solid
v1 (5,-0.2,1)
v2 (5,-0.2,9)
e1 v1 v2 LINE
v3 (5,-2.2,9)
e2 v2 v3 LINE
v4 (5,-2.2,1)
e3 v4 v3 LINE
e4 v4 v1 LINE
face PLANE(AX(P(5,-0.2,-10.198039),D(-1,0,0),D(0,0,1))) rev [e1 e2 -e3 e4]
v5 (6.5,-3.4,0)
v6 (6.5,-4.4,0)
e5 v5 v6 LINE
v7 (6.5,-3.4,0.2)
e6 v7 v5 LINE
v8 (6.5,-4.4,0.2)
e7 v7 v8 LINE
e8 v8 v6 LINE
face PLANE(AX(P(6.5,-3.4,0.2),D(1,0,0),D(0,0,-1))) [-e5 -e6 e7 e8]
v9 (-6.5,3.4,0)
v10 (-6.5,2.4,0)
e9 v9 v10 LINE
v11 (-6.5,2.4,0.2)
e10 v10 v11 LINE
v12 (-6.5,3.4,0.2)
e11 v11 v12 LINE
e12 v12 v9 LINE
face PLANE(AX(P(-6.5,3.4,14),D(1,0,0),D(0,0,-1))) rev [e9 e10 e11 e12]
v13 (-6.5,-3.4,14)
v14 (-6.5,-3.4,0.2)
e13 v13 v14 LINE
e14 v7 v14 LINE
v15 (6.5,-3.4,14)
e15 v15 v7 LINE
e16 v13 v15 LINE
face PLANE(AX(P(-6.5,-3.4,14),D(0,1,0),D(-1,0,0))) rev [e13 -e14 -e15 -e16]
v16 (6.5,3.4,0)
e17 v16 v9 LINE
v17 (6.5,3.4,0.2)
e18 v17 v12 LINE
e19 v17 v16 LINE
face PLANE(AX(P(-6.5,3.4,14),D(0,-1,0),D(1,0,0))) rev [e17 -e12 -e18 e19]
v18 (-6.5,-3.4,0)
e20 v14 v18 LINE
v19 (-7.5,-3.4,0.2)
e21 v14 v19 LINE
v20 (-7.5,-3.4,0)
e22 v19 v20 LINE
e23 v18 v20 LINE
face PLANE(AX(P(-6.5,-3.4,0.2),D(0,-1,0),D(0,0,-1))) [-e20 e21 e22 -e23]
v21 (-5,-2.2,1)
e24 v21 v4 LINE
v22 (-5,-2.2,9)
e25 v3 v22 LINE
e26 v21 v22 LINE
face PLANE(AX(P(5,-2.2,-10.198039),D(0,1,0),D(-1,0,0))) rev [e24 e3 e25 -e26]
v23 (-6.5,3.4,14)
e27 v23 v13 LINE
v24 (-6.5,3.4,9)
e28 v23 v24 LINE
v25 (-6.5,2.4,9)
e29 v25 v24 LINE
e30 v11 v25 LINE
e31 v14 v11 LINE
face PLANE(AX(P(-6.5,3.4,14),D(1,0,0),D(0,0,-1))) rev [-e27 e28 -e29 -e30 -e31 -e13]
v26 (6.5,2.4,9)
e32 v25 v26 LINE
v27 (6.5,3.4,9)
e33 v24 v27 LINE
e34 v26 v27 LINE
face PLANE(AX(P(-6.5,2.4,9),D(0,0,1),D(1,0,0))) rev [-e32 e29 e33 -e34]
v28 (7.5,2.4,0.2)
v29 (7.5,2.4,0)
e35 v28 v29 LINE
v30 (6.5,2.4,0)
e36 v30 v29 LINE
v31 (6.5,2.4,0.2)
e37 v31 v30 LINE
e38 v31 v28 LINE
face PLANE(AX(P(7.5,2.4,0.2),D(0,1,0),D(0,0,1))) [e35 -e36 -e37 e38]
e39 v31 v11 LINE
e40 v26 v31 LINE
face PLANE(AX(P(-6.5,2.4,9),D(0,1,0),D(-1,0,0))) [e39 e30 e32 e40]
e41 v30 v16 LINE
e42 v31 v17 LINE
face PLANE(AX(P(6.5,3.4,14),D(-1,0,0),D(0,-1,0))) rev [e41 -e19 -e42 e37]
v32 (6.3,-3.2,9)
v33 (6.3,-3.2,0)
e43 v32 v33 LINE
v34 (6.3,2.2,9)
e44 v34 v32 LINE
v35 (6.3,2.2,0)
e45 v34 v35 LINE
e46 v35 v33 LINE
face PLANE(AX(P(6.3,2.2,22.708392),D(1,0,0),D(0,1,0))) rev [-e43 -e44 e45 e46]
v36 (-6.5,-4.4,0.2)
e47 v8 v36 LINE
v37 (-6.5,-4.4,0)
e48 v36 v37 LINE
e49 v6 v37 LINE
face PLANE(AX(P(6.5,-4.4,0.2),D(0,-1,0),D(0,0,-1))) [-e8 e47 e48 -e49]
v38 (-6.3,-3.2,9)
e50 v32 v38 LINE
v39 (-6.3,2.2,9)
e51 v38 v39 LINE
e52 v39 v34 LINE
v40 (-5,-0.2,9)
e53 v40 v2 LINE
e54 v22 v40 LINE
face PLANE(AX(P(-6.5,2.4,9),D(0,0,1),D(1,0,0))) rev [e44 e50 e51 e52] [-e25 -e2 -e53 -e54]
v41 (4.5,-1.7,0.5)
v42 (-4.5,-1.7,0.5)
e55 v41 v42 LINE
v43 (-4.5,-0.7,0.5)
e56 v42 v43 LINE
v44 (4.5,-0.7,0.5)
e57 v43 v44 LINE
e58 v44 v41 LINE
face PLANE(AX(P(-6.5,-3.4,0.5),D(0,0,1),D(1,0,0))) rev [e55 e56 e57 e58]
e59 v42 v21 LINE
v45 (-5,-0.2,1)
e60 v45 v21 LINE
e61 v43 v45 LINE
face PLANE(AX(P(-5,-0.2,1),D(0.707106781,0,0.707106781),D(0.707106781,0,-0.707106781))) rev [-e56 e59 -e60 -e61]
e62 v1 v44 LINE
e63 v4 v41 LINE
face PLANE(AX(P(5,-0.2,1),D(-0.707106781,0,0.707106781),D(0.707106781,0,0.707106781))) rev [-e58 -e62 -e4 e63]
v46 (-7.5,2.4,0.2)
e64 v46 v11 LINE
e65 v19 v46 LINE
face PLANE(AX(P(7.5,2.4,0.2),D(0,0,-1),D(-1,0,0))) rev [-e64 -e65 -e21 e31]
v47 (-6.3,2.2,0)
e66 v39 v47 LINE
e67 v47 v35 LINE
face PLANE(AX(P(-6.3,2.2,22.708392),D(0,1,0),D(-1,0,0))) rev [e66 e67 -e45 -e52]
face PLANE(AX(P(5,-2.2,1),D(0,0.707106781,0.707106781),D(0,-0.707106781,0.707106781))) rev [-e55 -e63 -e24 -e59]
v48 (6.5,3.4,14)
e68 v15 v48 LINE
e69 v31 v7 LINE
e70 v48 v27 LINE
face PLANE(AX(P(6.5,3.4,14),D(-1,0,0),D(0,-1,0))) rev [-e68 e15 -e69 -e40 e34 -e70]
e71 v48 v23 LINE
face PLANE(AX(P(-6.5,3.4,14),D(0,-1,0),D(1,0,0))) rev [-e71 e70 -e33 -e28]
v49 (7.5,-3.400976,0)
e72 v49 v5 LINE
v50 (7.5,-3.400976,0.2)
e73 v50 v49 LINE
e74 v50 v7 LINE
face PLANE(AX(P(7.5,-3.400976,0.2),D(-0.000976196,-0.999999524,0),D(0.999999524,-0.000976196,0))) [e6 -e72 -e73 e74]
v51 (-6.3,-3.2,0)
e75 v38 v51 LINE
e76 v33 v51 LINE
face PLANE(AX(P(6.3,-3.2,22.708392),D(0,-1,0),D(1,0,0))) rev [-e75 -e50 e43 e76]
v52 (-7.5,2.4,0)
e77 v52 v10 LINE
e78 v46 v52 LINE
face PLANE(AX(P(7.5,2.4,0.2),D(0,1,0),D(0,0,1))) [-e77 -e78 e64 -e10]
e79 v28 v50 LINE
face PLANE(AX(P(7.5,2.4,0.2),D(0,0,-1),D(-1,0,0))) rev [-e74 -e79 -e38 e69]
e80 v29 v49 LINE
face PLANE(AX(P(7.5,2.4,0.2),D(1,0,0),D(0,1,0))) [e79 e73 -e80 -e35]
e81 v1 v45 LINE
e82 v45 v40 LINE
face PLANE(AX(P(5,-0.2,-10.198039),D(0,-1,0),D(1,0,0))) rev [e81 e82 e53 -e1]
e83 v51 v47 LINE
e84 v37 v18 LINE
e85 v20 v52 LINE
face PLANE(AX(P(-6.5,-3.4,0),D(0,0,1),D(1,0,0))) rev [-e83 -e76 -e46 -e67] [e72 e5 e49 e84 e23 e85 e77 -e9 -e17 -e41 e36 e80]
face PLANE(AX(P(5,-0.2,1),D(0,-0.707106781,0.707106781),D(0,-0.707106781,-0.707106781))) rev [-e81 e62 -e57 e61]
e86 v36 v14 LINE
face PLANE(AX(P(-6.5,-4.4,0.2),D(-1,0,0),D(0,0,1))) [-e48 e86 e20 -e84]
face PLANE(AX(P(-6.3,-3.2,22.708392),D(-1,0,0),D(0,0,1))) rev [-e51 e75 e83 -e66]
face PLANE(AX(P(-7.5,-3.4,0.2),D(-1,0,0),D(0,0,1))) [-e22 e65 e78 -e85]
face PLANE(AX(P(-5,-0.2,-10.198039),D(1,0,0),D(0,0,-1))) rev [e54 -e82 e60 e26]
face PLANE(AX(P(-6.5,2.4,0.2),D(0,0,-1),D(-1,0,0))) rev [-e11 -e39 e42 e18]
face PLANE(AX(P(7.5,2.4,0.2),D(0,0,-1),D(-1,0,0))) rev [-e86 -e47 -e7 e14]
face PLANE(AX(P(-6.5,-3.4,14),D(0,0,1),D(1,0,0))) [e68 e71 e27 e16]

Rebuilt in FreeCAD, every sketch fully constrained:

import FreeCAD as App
import Part
import Sketcher
Q = App.Units.Quantity


def edges_at(feature, points):
    """Names of the edges that pass closest to the given points."""
    edges = feature.Shape.Edges
    near = lambda p: min(range(len(edges)), key=lambda i: edges[i].distToShape(Part.Vertex(*p))[0])
    return sorted({f"Edge{near(p) + 1}" for p in points})


def add_polygon(sketch, points):
    """Adds a closed chain of lines whose ends are joined by coincident constraints."""
    first, n = sketch.GeometryCount, len(points)
    for a, b in zip(points, points[1:] + points[:1]):
        sketch.addGeometry(Part.LineSegment(App.Vector(*a, 0), App.Vector(*b, 0)), False)
    for i in range(n):
        sketch.addConstraint(Sketcher.Constraint("Coincident", first + i, 2, first + (i + 1) % n, 1))

doc = App.newDocument("Part")
body = doc.addObject("PartDesign::Body", "Body")

# Sketch on XY plane
sketch1 = body.newObject("Sketcher::SketchObject", "Sketch")
sketch1.AttachmentSupport = (doc.getObject("XY_Plane"), [""])
sketch1.MapMode = "FlatFace"
add_polygon(sketch1, [(-6, 3), (-6, -3), (6, -3), (6, 3)])  # lines 0-3
sketch1.addConstraint(Sketcher.Constraint("Vertical", 0))
sketch1.addConstraint(Sketcher.Constraint("Horizontal", 1))
sketch1.addConstraint(Sketcher.Constraint("Vertical", 2))
sketch1.addConstraint(Sketcher.Constraint("Horizontal", 3))
sketch1.addConstraint(Sketcher.Constraint("Symmetric", 0, 2, 2, 2, -1, 1))
sketch1.addConstraint(Sketcher.Constraint("DistanceX", 1, 1, 1, 2, Q("13 mm")))
sketch1.addConstraint(Sketcher.Constraint("DistanceY", 0, 2, 0, 1, Q("6.8 mm")))
pad1 = body.newObject("PartDesign::Pad", "Pad")
pad1.Profile = sketch1
pad1.Length = 14

# Sketch on XZ plane
sketch2 = body.newObject("Sketcher::SketchObject", "Sketch001")
sketch2.AttachmentSupport = (doc.getObject("XZ_Plane"), [""])
sketch2.MapMode = "FlatFace"
sketch2.AttachmentOffset = App.Placement(App.Vector(0, 0, -3.4), App.Rotation())
add_polygon(sketch2, [(6, 9), (6, 0), (-6, 0), (-6, 9)])  # lines 0-3
sketch2.addConstraint(Sketcher.Constraint("Vertical", 0))
sketch2.addConstraint(Sketcher.Constraint("Horizontal", 1))
sketch2.addConstraint(Sketcher.Constraint("Vertical", 2))
sketch2.addConstraint(Sketcher.Constraint("Horizontal", 3))
sketch2.addConstraint(Sketcher.Constraint("DistanceX", 1, 2, 1, 1, Q("13 mm")))
sketch2.addConstraint(Sketcher.Constraint("DistanceY", 0, 2, 0, 1, Q("8.8 mm")))
sketch2.addConstraint(Sketcher.Constraint("DistanceY", -1, 1, 2, 2, Q("9 mm")))
sketch2.addConstraint(Sketcher.Constraint("DistanceX", -1, 1, 0, 2, Q("6.5 mm")))
pocket1 = body.newObject("PartDesign::Pocket", "Pocket")
pocket1.Profile = sketch2
pocket1.Length = 1
pocket1.Reversed = True

# Sketch on XY plane
sketch3 = body.newObject("Sketcher::SketchObject", "Sketch002")
sketch3.AttachmentSupport = (doc.getObject("XY_Plane"), [""])
sketch3.MapMode = "FlatFace"
add_polygon(sketch3, [(-7.5, 2.4), (7.5, 2.4), (7.5, -3.4), (6.5, -3.4), (6.5, -4.4), (-6.5, -4.4), (-6.5, -3.4), (-7.5, -3.4)])  # lines 0-7
sketch3.addConstraint(Sketcher.Constraint("Horizontal", 0))
sketch3.addConstraint(Sketcher.Constraint("Vertical", 1))
sketch3.addConstraint(Sketcher.Constraint("Vertical", 3))
sketch3.addConstraint(Sketcher.Constraint("Horizontal", 4))
sketch3.addConstraint(Sketcher.Constraint("Vertical", 5))
sketch3.addConstraint(Sketcher.Constraint("Horizontal", 6))
sketch3.addConstraint(Sketcher.Constraint("Vertical", 7))
sketch3.addConstraint(Sketcher.Constraint("Symmetric", 2, 2, 5, 2, -2))
sketch3.addConstraint(Sketcher.Constraint("Equal", 6, 3))
sketch3.addConstraint(Sketcher.Constraint("DistanceX", 0, 1, 0, 2, Q("15 mm")))
sketch3.addConstraint(Sketcher.Constraint("DistanceX", 4, 2, 4, 1, Q("13 mm")))
sketch3.addConstraint(Sketcher.Constraint("DistanceX", 6, 2, 6, 1, Q("1 mm")))
sketch3.addConstraint(Sketcher.Constraint("DistanceY", 7, 1, 7, 2, Q("5.8 mm")))
sketch3.addConstraint(Sketcher.Constraint("DistanceY", -1, 1, 0, 2, Q("2.4 mm")))
sketch3.addConstraint(Sketcher.Constraint("DistanceY", 1, 2, 1, 1, Q("5.800976 mm")))
pad2 = body.newObject("PartDesign::Pad", "Pad001")
pad2.Profile = sketch3
pad2.Length = 0.2

# Sketch on XY plane
sketch4 = body.newObject("Sketcher::SketchObject", "Sketch003")
sketch4.AttachmentSupport = (doc.getObject("XY_Plane"), [""])
sketch4.MapMode = "FlatFace"
add_polygon(sketch4, [(6, 2), (6, -3), (-6, -3), (-6, 2)])  # lines 0-3
sketch4.addConstraint(Sketcher.Constraint("Vertical", 0))
sketch4.addConstraint(Sketcher.Constraint("Horizontal", 1))
sketch4.addConstraint(Sketcher.Constraint("Vertical", 2))
sketch4.addConstraint(Sketcher.Constraint("Horizontal", 3))
sketch4.addConstraint(Sketcher.Constraint("DistanceX", 1, 2, 1, 1, Q("12.6 mm")))
sketch4.addConstraint(Sketcher.Constraint("DistanceY", 0, 2, 0, 1, Q("5.4 mm")))
sketch4.addConstraint(Sketcher.Constraint("DistanceX", -1, 1, 0, 2, Q("6.3 mm")))
sketch4.addConstraint(Sketcher.Constraint("DistanceY", 0, 2, -1, 1, Q("3.2 mm")))
pocket2 = body.newObject("PartDesign::Pocket", "Pocket001")
pocket2.Profile = sketch4
pocket2.Length = 9
pocket2.Reversed = True

# Sketch on XY plane
sketch5 = body.newObject("Sketcher::SketchObject", "Sketch004")
sketch5.AttachmentSupport = (doc.getObject("XY_Plane"), [""])
sketch5.MapMode = "FlatFace"
sketch5.AttachmentOffset = App.Placement(App.Vector(0, 0, 9), App.Rotation())
add_polygon(sketch5, [(5, -0.2), (5, -2.2), (-5, -2.2), (-5, -0.2)])  # lines 0-3
sketch5.addConstraint(Sketcher.Constraint("Vertical", 0))
sketch5.addConstraint(Sketcher.Constraint("Horizontal", 1))
sketch5.addConstraint(Sketcher.Constraint("Vertical", 2))
sketch5.addConstraint(Sketcher.Constraint("Horizontal", 3))
sketch5.addConstraint(Sketcher.Constraint("DistanceX", 1, 2, 1, 1, Q("10 mm")))
sketch5.addConstraint(Sketcher.Constraint("DistanceY", 0, 2, 0, 1, Q("2 mm")))
sketch5.addConstraint(Sketcher.Constraint("DistanceX", -1, 1, 0, 2, Q("5 mm")))
sketch5.addConstraint(Sketcher.Constraint("DistanceY", 0, 2, -1, 1, Q("2.2 mm")))
pad3 = body.newObject("PartDesign::Pad", "Pad002")
pad3.Profile = sketch5
pad3.Length = 8.5
pad3.Reversed = True
doc.recompute()

chamfer = body.newObject("PartDesign::Chamfer", "Chamfer")
chamfer.Base = (pad3, edges_at(pad3, [
    (0, -0.2, 0.5),
    (-5, -1.2, 0.5),
    (0, -2.2, 0.5),
    (5, -1.2, 0.5),
]))
chamfer.Size = 0.5

doc.recompute()
